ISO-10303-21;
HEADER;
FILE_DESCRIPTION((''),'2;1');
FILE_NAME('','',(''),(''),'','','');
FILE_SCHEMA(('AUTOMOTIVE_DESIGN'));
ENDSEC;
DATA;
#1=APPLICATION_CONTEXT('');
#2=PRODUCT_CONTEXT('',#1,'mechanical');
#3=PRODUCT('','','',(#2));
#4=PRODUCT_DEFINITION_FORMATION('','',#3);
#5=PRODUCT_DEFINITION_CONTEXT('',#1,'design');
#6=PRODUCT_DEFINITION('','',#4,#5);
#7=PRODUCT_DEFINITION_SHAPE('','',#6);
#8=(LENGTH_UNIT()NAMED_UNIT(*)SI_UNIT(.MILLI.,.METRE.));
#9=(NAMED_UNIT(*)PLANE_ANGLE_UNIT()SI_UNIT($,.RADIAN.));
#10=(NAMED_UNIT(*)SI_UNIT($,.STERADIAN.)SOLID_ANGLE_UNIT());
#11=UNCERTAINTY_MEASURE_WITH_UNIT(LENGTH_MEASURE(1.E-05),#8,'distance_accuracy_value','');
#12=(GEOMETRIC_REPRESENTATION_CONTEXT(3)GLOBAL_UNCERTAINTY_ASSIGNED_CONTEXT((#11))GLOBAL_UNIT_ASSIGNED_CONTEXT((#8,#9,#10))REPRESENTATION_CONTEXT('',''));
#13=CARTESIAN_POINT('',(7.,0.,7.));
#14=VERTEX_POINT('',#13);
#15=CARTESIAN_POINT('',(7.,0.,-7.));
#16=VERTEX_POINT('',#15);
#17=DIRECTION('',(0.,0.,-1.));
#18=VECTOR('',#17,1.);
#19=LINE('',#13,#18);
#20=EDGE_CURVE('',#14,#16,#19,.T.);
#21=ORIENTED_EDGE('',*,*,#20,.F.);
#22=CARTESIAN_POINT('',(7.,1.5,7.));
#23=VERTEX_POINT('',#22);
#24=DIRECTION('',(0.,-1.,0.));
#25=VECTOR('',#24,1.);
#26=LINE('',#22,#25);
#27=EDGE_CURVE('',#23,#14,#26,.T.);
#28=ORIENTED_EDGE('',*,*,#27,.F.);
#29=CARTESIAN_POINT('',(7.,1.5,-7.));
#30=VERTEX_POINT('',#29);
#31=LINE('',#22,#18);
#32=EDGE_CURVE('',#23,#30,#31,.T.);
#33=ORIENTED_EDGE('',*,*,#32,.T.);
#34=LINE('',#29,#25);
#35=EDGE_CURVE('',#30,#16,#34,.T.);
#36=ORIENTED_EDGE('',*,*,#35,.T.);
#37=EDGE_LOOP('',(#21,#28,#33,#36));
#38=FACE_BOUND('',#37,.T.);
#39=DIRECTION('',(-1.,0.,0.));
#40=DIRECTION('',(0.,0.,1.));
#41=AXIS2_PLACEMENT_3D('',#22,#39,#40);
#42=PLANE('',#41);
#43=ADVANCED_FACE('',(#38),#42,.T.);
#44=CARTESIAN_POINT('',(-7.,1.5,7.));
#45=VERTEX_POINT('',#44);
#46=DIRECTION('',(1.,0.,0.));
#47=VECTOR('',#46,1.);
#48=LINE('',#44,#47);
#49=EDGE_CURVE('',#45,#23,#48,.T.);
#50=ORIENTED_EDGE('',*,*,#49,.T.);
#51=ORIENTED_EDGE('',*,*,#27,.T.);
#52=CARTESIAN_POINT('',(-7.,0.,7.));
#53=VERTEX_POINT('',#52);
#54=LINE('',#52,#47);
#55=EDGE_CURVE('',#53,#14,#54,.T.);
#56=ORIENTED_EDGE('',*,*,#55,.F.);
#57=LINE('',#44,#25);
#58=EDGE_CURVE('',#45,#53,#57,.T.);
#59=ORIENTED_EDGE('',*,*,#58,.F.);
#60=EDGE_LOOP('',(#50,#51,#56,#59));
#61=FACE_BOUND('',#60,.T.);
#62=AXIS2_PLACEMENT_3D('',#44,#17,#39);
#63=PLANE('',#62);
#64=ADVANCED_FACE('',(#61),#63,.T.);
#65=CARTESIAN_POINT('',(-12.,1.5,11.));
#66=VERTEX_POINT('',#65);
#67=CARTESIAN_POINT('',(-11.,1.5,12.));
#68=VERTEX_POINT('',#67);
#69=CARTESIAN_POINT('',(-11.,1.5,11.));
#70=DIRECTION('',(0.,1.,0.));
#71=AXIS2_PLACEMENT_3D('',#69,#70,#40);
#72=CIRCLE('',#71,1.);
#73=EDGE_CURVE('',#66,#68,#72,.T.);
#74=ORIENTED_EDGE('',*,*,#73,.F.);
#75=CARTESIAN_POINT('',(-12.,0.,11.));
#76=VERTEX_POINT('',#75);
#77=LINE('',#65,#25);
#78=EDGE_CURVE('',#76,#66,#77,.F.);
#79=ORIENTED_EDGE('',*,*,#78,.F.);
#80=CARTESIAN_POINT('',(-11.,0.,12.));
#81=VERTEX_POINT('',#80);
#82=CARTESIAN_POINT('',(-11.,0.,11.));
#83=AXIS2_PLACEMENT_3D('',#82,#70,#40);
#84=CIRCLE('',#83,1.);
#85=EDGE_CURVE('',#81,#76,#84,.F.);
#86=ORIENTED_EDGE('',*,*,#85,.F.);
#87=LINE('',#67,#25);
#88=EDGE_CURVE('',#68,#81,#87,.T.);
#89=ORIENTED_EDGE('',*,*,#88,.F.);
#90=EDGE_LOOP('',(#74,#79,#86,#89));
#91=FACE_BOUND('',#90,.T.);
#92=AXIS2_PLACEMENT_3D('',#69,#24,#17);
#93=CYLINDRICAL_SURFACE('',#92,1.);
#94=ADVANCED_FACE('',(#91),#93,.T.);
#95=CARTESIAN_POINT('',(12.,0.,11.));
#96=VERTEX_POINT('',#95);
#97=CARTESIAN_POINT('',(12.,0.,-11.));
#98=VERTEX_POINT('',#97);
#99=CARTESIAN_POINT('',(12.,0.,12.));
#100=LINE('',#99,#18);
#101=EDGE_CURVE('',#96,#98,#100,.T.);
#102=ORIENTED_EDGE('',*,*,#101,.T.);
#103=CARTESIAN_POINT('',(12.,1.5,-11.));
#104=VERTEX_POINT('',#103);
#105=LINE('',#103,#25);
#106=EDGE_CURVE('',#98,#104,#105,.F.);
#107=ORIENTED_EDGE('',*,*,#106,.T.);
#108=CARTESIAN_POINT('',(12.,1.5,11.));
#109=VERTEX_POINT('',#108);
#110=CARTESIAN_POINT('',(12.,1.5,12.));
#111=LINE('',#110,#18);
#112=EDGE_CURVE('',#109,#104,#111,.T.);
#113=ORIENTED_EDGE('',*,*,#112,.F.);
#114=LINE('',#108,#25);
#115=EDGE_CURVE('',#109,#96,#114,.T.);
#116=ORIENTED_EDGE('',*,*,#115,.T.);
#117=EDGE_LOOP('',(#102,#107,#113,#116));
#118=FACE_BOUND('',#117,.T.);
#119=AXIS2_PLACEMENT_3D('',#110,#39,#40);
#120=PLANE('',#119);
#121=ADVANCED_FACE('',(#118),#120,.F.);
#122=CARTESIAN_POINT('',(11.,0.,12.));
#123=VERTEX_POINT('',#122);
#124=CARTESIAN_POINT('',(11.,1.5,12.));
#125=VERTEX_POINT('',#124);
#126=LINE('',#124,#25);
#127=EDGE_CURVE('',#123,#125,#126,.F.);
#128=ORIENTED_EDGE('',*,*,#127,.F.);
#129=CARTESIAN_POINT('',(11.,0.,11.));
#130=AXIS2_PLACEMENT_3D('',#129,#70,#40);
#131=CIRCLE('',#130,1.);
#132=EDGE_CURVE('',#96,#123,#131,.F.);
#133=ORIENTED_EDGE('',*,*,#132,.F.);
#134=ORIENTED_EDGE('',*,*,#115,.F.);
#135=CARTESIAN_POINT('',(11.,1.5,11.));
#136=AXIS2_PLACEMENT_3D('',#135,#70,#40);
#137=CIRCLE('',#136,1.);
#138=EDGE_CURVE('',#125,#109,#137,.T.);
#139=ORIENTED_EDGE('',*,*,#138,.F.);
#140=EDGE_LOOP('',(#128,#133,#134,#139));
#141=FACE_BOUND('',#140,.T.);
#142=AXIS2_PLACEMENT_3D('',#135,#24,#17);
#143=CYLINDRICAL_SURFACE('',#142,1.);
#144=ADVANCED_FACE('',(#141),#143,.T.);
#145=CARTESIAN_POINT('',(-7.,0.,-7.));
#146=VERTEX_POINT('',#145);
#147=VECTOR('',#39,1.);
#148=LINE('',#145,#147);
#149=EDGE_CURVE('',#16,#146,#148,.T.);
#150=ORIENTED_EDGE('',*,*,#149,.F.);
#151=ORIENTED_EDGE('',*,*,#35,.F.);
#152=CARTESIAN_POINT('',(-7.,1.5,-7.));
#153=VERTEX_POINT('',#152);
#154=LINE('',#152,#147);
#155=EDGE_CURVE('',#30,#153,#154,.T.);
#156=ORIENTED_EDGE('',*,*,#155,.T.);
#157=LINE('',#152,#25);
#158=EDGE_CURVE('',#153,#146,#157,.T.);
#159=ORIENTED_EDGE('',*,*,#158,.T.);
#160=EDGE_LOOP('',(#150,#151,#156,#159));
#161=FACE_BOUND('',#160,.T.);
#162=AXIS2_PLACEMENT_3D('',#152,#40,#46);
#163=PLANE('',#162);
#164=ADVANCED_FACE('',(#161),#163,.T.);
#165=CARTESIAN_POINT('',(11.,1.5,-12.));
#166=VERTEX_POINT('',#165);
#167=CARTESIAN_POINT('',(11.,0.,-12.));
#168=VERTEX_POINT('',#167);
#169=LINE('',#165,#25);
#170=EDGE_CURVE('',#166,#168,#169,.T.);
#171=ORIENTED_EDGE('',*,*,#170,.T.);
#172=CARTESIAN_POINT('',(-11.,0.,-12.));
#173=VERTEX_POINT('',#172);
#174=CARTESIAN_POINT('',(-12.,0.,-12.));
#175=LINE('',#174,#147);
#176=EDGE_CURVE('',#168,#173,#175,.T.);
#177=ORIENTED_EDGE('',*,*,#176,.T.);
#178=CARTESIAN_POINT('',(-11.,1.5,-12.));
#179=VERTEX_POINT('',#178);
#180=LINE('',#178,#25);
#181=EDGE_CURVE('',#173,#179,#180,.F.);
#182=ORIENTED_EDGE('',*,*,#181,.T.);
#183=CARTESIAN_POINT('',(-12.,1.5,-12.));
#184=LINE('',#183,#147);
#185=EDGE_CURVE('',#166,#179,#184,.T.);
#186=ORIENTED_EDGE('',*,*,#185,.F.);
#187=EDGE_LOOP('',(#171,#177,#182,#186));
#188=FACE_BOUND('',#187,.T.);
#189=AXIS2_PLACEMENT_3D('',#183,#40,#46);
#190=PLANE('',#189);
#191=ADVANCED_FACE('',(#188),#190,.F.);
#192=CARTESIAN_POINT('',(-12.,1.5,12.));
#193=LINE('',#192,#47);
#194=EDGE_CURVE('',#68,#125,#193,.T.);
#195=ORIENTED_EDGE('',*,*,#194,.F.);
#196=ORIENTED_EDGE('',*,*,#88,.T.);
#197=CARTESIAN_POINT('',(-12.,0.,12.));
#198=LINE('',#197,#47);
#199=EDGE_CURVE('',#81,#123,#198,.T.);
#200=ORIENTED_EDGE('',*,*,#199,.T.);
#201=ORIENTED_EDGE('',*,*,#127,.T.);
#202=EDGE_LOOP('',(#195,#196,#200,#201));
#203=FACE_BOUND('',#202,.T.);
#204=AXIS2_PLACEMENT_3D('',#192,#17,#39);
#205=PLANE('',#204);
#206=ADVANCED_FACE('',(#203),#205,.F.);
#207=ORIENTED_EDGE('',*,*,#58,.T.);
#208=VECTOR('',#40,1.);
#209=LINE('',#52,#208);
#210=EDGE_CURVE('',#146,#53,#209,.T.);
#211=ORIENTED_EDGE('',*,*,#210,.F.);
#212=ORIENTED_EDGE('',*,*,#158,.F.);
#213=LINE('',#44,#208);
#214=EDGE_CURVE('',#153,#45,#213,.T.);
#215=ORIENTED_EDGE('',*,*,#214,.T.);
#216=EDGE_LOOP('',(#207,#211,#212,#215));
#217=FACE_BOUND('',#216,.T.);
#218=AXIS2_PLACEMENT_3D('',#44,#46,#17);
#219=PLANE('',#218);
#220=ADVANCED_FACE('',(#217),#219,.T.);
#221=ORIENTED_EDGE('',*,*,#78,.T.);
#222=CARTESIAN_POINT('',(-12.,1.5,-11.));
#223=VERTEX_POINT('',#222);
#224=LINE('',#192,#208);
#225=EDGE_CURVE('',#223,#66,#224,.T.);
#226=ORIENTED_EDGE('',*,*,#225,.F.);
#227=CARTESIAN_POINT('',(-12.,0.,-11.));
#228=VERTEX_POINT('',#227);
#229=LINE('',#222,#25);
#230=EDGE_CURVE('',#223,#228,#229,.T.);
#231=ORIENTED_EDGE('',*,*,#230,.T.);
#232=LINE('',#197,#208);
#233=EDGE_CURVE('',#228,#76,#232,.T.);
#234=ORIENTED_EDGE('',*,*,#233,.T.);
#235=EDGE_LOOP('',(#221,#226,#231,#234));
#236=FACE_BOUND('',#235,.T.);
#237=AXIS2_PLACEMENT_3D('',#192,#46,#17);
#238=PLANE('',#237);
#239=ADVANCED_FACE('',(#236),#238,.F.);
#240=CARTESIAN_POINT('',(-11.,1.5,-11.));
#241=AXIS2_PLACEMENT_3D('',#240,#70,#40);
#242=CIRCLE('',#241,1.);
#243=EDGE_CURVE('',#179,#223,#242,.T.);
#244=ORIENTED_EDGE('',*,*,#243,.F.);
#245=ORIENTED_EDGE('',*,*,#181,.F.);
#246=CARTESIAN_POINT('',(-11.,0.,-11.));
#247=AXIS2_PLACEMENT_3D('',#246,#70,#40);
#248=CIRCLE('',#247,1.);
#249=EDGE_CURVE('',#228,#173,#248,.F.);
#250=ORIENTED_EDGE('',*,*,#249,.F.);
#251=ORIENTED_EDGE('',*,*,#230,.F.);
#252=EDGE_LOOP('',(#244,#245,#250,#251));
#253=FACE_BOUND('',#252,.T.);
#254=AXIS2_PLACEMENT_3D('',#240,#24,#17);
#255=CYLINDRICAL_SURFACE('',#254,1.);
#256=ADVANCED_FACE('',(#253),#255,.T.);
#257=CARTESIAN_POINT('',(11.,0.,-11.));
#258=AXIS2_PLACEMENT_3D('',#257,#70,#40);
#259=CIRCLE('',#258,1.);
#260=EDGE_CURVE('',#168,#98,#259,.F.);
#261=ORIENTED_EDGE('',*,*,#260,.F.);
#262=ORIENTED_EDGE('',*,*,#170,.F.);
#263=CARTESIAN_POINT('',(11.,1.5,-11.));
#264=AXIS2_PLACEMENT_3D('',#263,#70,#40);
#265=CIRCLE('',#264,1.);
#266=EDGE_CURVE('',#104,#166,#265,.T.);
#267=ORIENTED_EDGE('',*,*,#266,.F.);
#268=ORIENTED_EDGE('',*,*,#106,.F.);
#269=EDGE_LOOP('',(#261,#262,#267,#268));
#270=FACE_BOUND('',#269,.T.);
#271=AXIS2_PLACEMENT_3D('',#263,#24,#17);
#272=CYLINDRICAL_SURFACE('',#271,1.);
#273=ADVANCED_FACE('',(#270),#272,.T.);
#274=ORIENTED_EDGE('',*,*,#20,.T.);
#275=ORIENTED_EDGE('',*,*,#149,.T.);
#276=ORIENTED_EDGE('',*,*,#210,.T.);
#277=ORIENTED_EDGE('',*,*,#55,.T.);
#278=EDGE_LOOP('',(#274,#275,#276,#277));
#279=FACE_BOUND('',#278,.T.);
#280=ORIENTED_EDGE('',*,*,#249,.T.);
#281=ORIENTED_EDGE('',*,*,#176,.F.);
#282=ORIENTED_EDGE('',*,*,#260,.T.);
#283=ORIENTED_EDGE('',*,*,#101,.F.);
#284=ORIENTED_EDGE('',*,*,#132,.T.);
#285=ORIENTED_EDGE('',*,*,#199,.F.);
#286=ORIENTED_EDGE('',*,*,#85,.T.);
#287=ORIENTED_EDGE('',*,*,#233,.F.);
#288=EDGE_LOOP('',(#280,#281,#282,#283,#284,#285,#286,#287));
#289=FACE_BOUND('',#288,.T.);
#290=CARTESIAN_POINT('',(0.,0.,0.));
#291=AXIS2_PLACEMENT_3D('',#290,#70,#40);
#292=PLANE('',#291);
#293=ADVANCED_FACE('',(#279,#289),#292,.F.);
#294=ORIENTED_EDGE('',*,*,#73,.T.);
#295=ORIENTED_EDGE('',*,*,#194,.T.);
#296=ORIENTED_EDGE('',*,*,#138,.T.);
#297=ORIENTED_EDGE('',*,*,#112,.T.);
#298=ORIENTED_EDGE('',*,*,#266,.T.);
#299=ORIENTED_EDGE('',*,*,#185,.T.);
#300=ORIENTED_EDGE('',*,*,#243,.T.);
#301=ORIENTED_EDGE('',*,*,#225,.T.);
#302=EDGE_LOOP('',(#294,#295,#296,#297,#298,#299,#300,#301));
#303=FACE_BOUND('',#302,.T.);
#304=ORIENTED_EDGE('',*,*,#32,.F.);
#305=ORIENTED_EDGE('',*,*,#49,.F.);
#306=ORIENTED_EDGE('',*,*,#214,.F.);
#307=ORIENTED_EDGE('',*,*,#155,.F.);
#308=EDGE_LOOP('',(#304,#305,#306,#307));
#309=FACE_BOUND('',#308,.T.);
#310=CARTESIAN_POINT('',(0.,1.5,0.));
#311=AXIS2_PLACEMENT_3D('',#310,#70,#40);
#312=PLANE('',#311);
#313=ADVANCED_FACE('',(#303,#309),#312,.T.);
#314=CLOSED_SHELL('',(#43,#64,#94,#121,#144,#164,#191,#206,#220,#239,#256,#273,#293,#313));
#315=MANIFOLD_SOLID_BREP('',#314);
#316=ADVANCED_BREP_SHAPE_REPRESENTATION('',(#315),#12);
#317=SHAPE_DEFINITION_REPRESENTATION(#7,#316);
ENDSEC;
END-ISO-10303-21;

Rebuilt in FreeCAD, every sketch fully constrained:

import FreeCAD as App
import Part
import Sketcher

V = App.Vector


def edges_at(feature, points):
    """Names of the edges that pass closest to the given points."""
    edges = feature.Shape.Edges
    near = lambda p: min(range(len(edges)), key=lambda i: edges[i].distToShape(Part.Vertex(*p))[0])
    return sorted({f"Edge{near(p) + 1}" for p in points})


def add_polygon(sketch, points):
    """Adds a closed chain of lines whose ends are joined by coincident constraints."""
    first, n = sketch.GeometryCount, len(points)
    for a, b in zip(points, points[1:] + points[:1]):
        sketch.addGeometry(Part.LineSegment(App.Vector(*a, 0), App.Vector(*b, 0)), False)
    for i in range(n):
        sketch.addConstraint(Sketcher.Constraint("Coincident", first + i, 2, first + (i + 1) % n, 1))

doc = App.newDocument("Part")
body = doc.addObject("PartDesign::Body", "Body")

# Sketch on XZ plane
sketch1 = doc.addObject("Sketcher::SketchObject", "Sketch")
body.addObject(sketch1)
sketch1.AttachmentSupport = (doc.XZ_Plane, [""])
sketch1.MapMode = "FlatFace"
add_polygon(sketch1, [(-12, -12), (-12, 12), (12, 12), (12, -12)])  # lines 0-3
add_polygon(sketch1, [(7, 7), (-7, 7), (-7, -7), (7, -7)])  # lines 4-7
sketch1.addConstraint(Sketcher.Constraint("Vertical", 0))
sketch1.addConstraint(Sketcher.Constraint("Horizontal", 1))
sketch1.addConstraint(Sketcher.Constraint("Vertical", 2))
sketch1.addConstraint(Sketcher.Constraint("Horizontal", 3))
sketch1.addConstraint(Sketcher.Constraint("Horizontal", 4))
sketch1.addConstraint(Sketcher.Constraint("Vertical", 5))
sketch1.addConstraint(Sketcher.Constraint("Horizontal", 6))
sketch1.addConstraint(Sketcher.Constraint("Vertical", 7))
sketch1.addConstraint(Sketcher.Constraint("Symmetric", 0, 2, 2, 2, -1, 1))
sketch1.addConstraint(Sketcher.Constraint("Symmetric", 4, 2, 6, 2, -1, 1))
sketch1.addConstraint(Sketcher.Constraint("Equal", 3, 0))
sketch1.addConstraint(Sketcher.Constraint("Equal", 6, 5))
sketch1.addConstraint(Sketcher.Constraint("DistanceX", 1, 1, 1, 2, 24.0))
sketch1.addConstraint(Sketcher.Constraint("DistanceX", 4, 2, 4, 1, 14.0))
pad1 = doc.addObject("PartDesign::Pad", "Pad")
body.addObject(pad1)
pad1.Profile = sketch1
pad1.Length = 1.5
pad1.Reversed = True
doc.recompute()

fillet = doc.addObject("PartDesign::Fillet", "Fillet")
body.addObject(fillet)
fillet.Base = (pad1, edges_at(pad1, [
    (-12, 0.75, 12),
    (-12, 0.75, -12),
    (12, 0.75, -12),
    (12, 0.75, 12),
]))
fillet.Radius = 1

doc.recompute()
